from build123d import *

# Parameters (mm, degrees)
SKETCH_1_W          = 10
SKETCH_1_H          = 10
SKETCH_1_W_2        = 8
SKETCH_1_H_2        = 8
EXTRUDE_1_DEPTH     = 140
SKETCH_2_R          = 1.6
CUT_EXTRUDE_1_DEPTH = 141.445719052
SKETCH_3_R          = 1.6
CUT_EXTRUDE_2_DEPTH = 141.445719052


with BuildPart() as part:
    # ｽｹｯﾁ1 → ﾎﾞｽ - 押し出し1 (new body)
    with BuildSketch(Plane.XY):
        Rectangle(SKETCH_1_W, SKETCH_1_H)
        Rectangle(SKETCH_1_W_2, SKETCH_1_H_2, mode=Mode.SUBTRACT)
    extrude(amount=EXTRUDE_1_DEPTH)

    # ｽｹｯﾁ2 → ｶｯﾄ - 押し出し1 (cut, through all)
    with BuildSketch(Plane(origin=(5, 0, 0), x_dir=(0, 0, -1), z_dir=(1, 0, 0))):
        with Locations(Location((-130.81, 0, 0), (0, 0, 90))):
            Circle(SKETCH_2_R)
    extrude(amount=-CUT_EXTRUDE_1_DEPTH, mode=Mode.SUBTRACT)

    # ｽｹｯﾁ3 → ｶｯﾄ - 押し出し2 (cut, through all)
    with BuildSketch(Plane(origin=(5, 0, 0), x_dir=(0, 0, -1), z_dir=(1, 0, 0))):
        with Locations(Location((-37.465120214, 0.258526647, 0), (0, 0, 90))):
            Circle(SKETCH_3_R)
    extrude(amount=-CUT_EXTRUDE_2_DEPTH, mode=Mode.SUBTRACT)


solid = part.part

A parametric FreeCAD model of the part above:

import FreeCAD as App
import Part
import Sketcher
from FreeCAD import Vector
Q = App.Units.Quantity


def add_polygon(sketch, points):
    """Adds a closed chain of lines whose ends are joined by coincident constraints."""
    first, n = sketch.GeometryCount, len(points)
    for a, b in zip(points, points[1:] + points[:1]):
        sketch.addGeometry(Part.LineSegment(App.Vector(*a, 0), App.Vector(*b, 0)), False)
    for i in range(n):
        sketch.addConstraint(Sketcher.Constraint("Coincident", first + i, 2, first + (i + 1) % n, 1))

doc = App.newDocument("Part")
body = doc.addObject("PartDesign::Body", "Body")

# Sketch on XY plane
sketch1 = body.newObject("Sketcher::SketchObject", "Sketch")
sketch1.AttachmentSupport = (doc.getObject("XY_Plane"), [""])
sketch1.MapMode = "FlatFace"
add_polygon(sketch1, [(-5, 5), (-5, -5), (5, -5), (5, 5)])  # lines 0-3
add_polygon(sketch1, [(4, -4), (-4, -4), (-4, 4), (4, 4)])  # lines 4-7
sketch1.addConstraint(Sketcher.Constraint("Vertical", 0))
sketch1.addConstraint(Sketcher.Constraint("Horizontal", 1))
sketch1.addConstraint(Sketcher.Constraint("Vertical", 2))
sketch1.addConstraint(Sketcher.Constraint("Horizontal", 3))
sketch1.addConstraint(Sketcher.Constraint("Horizontal", 4))
sketch1.addConstraint(Sketcher.Constraint("Vertical", 5))
sketch1.addConstraint(Sketcher.Constraint("Horizontal", 6))
sketch1.addConstraint(Sketcher.Constraint("Vertical", 7))
sketch1.addConstraint(Sketcher.Constraint("Symmetric", 0, 2, 2, 2, -1, 1))
sketch1.addConstraint(Sketcher.Constraint("Symmetric", 4, 2, 6, 2, -1, 1))
sketch1.addConstraint(Sketcher.Constraint("Equal", 3, 0))
sketch1.addConstraint(Sketcher.Constraint("Equal", 6, 5))
sketch1.addConstraint(Sketcher.Constraint("DistanceX", 1, 1, 1, 2, Q("10 mm")))
sketch1.addConstraint(Sketcher.Constraint("DistanceX", 4, 2, 4, 1, Q("8 mm")))
pad1 = body.newObject("PartDesign::Pad", "Pad")
pad1.Profile = sketch1
pad1.Length = 140

# Sketch on YZ plane
sketch2 = body.newObject("Sketcher::SketchObject", "Sketch001")
sketch2.AttachmentSupport = (doc.getObject("YZ_Plane"), [""])
sketch2.MapMode = "FlatFace"
sketch2.AttachmentOffset = App.Placement(Vector(0, 0, 5), App.Rotation())
sketch2.addGeometry(Part.Circle(Vector(0, 130.8, 0), Vector(0, 0, 1), 1.6), False)
sketch2.addConstraint(Sketcher.Constraint("PointOnObject", 0, 3, -2))
sketch2.addConstraint(Sketcher.Constraint("Diameter", 0, Q("3.2 mm")))
sketch2.addConstraint(Sketcher.Constraint("DistanceY", -1, 1, 0, 3, Q("130.81 mm")))
pocket1 = body.newObject("PartDesign::Pocket", "Pocket")
pocket1.Profile = sketch2
pocket1.Type = "ThroughAll"

# Sketch on YZ plane
sketch3 = body.newObject("Sketcher::SketchObject", "Sketch002")
sketch3.AttachmentSupport = (doc.getObject("YZ_Plane"), [""])
sketch3.MapMode = "FlatFace"
sketch3.AttachmentOffset = App.Placement(Vector(0, 0, 5), App.Rotation())
sketch3.addGeometry(Part.Circle(Vector(0.3, 37.5, 0), Vector(0, 0, 1), 1.6), False)
sketch3.addConstraint(Sketcher.Constraint("Diameter", 0, Q("3.2 mm")))
sketch3.addConstraint(Sketcher.Constraint("DistanceY", -1, 1, 0, 3, Q("37.46512 mm")))
sketch3.addConstraint(Sketcher.Constraint("DistanceX", -1, 1, 0, 3, Q("0.258527 mm")))
pocket2 = body.newObject("PartDesign::Pocket", "Pocket001")
pocket2.Profile = sketch3
pocket2.Type = "ThroughAll"

doc.recompute()
